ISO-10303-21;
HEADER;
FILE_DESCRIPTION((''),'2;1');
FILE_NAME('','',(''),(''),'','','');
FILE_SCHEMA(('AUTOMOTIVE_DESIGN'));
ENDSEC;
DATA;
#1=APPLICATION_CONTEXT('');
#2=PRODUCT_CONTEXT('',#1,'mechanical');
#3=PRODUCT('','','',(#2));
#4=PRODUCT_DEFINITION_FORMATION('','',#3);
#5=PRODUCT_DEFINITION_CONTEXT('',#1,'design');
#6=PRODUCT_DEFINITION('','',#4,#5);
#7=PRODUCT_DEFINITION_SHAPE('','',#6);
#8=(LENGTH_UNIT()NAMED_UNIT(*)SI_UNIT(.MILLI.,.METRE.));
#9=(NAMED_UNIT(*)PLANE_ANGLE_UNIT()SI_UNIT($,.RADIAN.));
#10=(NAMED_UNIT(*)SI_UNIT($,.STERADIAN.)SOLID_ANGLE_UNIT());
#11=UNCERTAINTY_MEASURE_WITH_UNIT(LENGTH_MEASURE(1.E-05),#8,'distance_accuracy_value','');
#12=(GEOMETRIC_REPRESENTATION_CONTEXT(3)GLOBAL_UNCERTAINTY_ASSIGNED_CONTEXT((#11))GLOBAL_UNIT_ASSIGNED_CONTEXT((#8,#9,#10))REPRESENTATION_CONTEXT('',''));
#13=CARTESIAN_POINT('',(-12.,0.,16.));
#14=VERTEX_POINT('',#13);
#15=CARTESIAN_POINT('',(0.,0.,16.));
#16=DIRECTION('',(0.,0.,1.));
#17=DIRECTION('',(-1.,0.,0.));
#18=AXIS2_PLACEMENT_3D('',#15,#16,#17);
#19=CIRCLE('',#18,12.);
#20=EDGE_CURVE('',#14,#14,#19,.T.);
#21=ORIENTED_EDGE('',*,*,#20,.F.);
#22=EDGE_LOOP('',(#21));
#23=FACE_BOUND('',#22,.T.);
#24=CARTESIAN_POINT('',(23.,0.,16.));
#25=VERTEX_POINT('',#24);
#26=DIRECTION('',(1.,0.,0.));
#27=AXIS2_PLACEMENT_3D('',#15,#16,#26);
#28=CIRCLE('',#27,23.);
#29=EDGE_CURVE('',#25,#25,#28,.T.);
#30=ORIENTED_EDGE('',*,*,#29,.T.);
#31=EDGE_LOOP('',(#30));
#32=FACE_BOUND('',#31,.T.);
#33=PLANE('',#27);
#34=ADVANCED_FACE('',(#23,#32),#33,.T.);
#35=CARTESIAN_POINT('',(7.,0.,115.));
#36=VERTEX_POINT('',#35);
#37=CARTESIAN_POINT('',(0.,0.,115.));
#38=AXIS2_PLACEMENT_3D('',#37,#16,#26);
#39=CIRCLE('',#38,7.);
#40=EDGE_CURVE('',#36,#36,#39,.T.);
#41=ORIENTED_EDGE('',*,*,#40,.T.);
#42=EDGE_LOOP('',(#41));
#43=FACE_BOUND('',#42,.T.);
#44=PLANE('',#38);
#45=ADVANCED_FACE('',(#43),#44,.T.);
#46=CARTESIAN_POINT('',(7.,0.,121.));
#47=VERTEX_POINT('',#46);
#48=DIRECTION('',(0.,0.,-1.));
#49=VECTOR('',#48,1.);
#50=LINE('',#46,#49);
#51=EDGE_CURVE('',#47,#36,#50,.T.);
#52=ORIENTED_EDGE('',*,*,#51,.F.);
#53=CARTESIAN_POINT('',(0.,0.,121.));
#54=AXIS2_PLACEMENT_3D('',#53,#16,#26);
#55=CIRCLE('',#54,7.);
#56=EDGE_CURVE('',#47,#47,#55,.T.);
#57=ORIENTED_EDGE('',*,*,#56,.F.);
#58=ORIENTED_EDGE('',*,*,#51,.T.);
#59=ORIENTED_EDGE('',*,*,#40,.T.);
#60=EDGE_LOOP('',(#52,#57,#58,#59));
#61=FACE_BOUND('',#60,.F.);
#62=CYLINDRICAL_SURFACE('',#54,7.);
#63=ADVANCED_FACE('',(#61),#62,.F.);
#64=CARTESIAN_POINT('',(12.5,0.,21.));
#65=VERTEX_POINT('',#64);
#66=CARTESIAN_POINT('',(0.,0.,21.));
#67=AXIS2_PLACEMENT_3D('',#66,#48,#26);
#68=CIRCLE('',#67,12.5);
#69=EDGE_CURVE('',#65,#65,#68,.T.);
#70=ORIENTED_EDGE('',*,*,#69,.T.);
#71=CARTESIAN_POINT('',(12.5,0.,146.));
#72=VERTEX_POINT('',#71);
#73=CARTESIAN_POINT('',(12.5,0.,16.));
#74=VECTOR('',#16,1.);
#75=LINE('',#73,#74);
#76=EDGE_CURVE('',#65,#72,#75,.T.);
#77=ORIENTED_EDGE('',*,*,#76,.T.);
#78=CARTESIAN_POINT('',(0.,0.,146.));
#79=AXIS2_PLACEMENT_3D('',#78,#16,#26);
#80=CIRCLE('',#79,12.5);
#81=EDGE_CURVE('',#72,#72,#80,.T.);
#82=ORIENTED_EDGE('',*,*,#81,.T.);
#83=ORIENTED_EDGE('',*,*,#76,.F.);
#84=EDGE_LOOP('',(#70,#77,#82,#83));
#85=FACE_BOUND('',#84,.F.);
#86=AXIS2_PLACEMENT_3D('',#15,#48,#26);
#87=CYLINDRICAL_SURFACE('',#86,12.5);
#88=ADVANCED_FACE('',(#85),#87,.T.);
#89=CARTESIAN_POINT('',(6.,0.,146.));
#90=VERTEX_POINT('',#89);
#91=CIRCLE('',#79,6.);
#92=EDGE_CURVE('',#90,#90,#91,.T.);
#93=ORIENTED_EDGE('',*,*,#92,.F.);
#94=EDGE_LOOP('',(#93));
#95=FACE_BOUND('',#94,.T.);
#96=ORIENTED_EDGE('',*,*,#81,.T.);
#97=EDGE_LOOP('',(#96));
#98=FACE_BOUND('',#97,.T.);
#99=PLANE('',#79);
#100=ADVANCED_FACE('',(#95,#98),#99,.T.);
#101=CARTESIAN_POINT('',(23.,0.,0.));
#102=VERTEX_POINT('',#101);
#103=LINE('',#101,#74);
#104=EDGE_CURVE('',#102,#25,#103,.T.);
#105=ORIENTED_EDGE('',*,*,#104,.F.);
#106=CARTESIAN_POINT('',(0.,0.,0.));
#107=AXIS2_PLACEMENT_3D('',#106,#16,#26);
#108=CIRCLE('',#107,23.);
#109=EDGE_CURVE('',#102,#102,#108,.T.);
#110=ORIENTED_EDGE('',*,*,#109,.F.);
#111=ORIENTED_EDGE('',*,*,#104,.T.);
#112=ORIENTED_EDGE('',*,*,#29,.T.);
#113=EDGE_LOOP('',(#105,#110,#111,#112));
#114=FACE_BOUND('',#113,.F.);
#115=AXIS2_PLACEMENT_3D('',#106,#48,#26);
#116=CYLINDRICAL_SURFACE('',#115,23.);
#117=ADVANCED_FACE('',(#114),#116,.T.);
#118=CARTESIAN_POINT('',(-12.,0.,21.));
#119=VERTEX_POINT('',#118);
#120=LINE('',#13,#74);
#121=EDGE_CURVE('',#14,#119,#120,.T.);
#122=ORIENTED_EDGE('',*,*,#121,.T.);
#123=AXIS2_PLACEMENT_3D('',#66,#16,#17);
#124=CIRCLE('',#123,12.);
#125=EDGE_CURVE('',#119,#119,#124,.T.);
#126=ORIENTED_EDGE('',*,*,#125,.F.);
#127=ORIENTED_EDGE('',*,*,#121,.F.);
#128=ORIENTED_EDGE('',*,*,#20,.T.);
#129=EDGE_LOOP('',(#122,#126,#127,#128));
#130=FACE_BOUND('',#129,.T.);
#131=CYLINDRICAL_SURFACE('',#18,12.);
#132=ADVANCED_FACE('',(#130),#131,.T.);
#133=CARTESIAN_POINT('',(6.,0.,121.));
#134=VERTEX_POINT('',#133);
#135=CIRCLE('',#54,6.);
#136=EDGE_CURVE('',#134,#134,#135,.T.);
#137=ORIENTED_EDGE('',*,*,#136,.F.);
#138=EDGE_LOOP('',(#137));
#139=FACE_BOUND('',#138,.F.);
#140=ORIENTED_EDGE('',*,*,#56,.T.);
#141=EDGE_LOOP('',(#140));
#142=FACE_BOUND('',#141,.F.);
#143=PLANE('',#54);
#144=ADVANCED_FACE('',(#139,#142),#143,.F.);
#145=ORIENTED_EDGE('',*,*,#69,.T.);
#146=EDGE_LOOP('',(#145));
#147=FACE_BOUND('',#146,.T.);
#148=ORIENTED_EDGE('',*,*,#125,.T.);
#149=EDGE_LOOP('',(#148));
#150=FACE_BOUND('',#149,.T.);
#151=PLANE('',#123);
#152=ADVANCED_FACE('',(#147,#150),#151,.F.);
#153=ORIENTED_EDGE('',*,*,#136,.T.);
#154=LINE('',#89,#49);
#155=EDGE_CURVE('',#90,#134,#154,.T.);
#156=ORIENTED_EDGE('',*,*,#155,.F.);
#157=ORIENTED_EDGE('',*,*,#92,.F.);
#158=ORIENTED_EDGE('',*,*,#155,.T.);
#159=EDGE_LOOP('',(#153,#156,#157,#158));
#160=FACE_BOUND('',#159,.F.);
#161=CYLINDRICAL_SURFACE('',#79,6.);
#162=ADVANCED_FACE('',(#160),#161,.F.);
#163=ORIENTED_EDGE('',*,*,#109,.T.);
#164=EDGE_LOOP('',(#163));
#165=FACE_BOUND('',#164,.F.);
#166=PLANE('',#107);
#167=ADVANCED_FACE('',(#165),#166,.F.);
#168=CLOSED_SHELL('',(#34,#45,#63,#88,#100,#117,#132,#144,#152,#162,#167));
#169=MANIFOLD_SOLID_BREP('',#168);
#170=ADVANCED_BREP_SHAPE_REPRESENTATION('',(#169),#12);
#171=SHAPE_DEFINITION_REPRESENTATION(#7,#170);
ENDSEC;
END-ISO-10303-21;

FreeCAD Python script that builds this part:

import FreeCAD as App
import Part
import Sketcher

V = App.Vector


def add_polygon(sketch, points):
    """Adds a closed chain of lines whose ends are joined by coincident constraints."""
    first, n = sketch.GeometryCount, len(points)
    for a, b in zip(points, points[1:] + points[:1]):
        sketch.addGeometry(Part.LineSegment(App.Vector(*a, 0), App.Vector(*b, 0)), False)
    for i in range(n):
        sketch.addConstraint(Sketcher.Constraint("Coincident", first + i, 2, first + (i + 1) % n, 1))

doc = App.newDocument("Part")
body = doc.addObject("PartDesign::Body", "Body")

# Sketch on XY plane
sketch1 = body.newObject("Sketcher::SketchObject", "Sketch")
sketch1.AttachmentSupport = (doc.getObject("XY_Plane"), [""])
sketch1.MapMode = "FlatFace"
sketch1.addGeometry(Part.Circle(V(0, 0, 0), V(0, 0, 1), 23), False)
sketch1.addConstraint(Sketcher.Constraint("Coincident", 0, 3, -1, 1))
sketch1.addConstraint(Sketcher.Constraint("Diameter", 0, 46.0))
pad1 = body.newObject("PartDesign::Pad", "Pad")
pad1.Profile = sketch1
pad1.Length = 16

# Sketch on XY plane
sketch2 = body.newObject("Sketcher::SketchObject", "Sketch001")
sketch2.AttachmentSupport = (doc.getObject("XY_Plane"), [""])
sketch2.MapMode = "FlatFace"
sketch2.AttachmentOffset = App.Placement(V(0, 0, 16), App.Rotation())
sketch2.addGeometry(Part.Circle(V(0, 0, 0), V(0, 0, 1), 12), False)
sketch2.addConstraint(Sketcher.Constraint("Coincident", 0, 3, -1, 1))
sketch2.addConstraint(Sketcher.Constraint("Diameter", 0, 25.0))
pad2 = body.newObject("PartDesign::Pad", "Pad001")
pad2.Profile = sketch2
pad2.Length = 130

# Sketch on XY plane
sketch3 = body.newObject("Sketcher::SketchObject", "Sketch002")
sketch3.AttachmentSupport = (doc.getObject("XY_Plane"), [""])
sketch3.MapMode = "FlatFace"
sketch3.AttachmentOffset = App.Placement(V(0, 0, 146), App.Rotation())
sketch3.addGeometry(Part.Circle(V(0, 0, 0), V(0, 0, 1), 6), False)
sketch3.addConstraint(Sketcher.Constraint("Coincident", 0, 3, -1, 1))
sketch3.addConstraint(Sketcher.Constraint("Diameter", 0, 12.0))
pocket1 = body.newObject("PartDesign::Pocket", "Pocket")
pocket1.Profile = sketch3
pocket1.Length = 25

# Sketch on XY plane
sketch4 = body.newObject("Sketcher::SketchObject", "Sketch003")
sketch4.AttachmentSupport = (doc.getObject("XY_Plane"), [""])
sketch4.MapMode = "FlatFace"
sketch4.AttachmentOffset = App.Placement(V(0, 0, 121), App.Rotation())
sketch4.addGeometry(Part.Circle(V(0, 0, 0), V(0, 0, 1), 7), False)
sketch4.addConstraint(Sketcher.Constraint("Coincident", 0, 3, -1, 1))
sketch4.addConstraint(Sketcher.Constraint("Diameter", 0, 14.0))
pocket2 = body.newObject("PartDesign::Pocket", "Pocket001")
pocket2.Profile = sketch4
pocket2.Length = 6

# Sketch on XZ plane
sketch5 = body.newObject("Sketcher::SketchObject", "Sketch004")
sketch5.AttachmentSupport = (doc.getObject("XZ_Plane"), [""])
sketch5.MapMode = "FlatFace"
add_polygon(sketch5, [(-12, 16), (-12.5, 16), (-12.5, 21), (-12, 21)])  # lines 0-3
sketch5.addConstraint(Sketcher.Constraint("Horizontal", 0))
sketch5.addConstraint(Sketcher.Constraint("Vertical", 1))
sketch5.addConstraint(Sketcher.Constraint("Horizontal", 2))
sketch5.addConstraint(Sketcher.Constraint("Vertical", 3))
sketch5.addConstraint(Sketcher.Constraint("DistanceY", 1, 1, 1, 2, 5.0))
sketch5.addConstraint(Sketcher.Constraint("DistanceX", 0, 2, 0, 1, 0.5))
sketch5.addConstraint(Sketcher.Constraint("DistanceY", -1, 1, 0, 2, 16.0))
sketch5.addConstraint(Sketcher.Constraint("DistanceX", 2, 2, -1, 1, 12.0))
groove = body.newObject("PartDesign::Groove", "Groove")
groove.Profile = sketch5
groove.ReferenceAxis = (sketch5, ["V_Axis"])
groove.Angle = 360

doc.recompute()
